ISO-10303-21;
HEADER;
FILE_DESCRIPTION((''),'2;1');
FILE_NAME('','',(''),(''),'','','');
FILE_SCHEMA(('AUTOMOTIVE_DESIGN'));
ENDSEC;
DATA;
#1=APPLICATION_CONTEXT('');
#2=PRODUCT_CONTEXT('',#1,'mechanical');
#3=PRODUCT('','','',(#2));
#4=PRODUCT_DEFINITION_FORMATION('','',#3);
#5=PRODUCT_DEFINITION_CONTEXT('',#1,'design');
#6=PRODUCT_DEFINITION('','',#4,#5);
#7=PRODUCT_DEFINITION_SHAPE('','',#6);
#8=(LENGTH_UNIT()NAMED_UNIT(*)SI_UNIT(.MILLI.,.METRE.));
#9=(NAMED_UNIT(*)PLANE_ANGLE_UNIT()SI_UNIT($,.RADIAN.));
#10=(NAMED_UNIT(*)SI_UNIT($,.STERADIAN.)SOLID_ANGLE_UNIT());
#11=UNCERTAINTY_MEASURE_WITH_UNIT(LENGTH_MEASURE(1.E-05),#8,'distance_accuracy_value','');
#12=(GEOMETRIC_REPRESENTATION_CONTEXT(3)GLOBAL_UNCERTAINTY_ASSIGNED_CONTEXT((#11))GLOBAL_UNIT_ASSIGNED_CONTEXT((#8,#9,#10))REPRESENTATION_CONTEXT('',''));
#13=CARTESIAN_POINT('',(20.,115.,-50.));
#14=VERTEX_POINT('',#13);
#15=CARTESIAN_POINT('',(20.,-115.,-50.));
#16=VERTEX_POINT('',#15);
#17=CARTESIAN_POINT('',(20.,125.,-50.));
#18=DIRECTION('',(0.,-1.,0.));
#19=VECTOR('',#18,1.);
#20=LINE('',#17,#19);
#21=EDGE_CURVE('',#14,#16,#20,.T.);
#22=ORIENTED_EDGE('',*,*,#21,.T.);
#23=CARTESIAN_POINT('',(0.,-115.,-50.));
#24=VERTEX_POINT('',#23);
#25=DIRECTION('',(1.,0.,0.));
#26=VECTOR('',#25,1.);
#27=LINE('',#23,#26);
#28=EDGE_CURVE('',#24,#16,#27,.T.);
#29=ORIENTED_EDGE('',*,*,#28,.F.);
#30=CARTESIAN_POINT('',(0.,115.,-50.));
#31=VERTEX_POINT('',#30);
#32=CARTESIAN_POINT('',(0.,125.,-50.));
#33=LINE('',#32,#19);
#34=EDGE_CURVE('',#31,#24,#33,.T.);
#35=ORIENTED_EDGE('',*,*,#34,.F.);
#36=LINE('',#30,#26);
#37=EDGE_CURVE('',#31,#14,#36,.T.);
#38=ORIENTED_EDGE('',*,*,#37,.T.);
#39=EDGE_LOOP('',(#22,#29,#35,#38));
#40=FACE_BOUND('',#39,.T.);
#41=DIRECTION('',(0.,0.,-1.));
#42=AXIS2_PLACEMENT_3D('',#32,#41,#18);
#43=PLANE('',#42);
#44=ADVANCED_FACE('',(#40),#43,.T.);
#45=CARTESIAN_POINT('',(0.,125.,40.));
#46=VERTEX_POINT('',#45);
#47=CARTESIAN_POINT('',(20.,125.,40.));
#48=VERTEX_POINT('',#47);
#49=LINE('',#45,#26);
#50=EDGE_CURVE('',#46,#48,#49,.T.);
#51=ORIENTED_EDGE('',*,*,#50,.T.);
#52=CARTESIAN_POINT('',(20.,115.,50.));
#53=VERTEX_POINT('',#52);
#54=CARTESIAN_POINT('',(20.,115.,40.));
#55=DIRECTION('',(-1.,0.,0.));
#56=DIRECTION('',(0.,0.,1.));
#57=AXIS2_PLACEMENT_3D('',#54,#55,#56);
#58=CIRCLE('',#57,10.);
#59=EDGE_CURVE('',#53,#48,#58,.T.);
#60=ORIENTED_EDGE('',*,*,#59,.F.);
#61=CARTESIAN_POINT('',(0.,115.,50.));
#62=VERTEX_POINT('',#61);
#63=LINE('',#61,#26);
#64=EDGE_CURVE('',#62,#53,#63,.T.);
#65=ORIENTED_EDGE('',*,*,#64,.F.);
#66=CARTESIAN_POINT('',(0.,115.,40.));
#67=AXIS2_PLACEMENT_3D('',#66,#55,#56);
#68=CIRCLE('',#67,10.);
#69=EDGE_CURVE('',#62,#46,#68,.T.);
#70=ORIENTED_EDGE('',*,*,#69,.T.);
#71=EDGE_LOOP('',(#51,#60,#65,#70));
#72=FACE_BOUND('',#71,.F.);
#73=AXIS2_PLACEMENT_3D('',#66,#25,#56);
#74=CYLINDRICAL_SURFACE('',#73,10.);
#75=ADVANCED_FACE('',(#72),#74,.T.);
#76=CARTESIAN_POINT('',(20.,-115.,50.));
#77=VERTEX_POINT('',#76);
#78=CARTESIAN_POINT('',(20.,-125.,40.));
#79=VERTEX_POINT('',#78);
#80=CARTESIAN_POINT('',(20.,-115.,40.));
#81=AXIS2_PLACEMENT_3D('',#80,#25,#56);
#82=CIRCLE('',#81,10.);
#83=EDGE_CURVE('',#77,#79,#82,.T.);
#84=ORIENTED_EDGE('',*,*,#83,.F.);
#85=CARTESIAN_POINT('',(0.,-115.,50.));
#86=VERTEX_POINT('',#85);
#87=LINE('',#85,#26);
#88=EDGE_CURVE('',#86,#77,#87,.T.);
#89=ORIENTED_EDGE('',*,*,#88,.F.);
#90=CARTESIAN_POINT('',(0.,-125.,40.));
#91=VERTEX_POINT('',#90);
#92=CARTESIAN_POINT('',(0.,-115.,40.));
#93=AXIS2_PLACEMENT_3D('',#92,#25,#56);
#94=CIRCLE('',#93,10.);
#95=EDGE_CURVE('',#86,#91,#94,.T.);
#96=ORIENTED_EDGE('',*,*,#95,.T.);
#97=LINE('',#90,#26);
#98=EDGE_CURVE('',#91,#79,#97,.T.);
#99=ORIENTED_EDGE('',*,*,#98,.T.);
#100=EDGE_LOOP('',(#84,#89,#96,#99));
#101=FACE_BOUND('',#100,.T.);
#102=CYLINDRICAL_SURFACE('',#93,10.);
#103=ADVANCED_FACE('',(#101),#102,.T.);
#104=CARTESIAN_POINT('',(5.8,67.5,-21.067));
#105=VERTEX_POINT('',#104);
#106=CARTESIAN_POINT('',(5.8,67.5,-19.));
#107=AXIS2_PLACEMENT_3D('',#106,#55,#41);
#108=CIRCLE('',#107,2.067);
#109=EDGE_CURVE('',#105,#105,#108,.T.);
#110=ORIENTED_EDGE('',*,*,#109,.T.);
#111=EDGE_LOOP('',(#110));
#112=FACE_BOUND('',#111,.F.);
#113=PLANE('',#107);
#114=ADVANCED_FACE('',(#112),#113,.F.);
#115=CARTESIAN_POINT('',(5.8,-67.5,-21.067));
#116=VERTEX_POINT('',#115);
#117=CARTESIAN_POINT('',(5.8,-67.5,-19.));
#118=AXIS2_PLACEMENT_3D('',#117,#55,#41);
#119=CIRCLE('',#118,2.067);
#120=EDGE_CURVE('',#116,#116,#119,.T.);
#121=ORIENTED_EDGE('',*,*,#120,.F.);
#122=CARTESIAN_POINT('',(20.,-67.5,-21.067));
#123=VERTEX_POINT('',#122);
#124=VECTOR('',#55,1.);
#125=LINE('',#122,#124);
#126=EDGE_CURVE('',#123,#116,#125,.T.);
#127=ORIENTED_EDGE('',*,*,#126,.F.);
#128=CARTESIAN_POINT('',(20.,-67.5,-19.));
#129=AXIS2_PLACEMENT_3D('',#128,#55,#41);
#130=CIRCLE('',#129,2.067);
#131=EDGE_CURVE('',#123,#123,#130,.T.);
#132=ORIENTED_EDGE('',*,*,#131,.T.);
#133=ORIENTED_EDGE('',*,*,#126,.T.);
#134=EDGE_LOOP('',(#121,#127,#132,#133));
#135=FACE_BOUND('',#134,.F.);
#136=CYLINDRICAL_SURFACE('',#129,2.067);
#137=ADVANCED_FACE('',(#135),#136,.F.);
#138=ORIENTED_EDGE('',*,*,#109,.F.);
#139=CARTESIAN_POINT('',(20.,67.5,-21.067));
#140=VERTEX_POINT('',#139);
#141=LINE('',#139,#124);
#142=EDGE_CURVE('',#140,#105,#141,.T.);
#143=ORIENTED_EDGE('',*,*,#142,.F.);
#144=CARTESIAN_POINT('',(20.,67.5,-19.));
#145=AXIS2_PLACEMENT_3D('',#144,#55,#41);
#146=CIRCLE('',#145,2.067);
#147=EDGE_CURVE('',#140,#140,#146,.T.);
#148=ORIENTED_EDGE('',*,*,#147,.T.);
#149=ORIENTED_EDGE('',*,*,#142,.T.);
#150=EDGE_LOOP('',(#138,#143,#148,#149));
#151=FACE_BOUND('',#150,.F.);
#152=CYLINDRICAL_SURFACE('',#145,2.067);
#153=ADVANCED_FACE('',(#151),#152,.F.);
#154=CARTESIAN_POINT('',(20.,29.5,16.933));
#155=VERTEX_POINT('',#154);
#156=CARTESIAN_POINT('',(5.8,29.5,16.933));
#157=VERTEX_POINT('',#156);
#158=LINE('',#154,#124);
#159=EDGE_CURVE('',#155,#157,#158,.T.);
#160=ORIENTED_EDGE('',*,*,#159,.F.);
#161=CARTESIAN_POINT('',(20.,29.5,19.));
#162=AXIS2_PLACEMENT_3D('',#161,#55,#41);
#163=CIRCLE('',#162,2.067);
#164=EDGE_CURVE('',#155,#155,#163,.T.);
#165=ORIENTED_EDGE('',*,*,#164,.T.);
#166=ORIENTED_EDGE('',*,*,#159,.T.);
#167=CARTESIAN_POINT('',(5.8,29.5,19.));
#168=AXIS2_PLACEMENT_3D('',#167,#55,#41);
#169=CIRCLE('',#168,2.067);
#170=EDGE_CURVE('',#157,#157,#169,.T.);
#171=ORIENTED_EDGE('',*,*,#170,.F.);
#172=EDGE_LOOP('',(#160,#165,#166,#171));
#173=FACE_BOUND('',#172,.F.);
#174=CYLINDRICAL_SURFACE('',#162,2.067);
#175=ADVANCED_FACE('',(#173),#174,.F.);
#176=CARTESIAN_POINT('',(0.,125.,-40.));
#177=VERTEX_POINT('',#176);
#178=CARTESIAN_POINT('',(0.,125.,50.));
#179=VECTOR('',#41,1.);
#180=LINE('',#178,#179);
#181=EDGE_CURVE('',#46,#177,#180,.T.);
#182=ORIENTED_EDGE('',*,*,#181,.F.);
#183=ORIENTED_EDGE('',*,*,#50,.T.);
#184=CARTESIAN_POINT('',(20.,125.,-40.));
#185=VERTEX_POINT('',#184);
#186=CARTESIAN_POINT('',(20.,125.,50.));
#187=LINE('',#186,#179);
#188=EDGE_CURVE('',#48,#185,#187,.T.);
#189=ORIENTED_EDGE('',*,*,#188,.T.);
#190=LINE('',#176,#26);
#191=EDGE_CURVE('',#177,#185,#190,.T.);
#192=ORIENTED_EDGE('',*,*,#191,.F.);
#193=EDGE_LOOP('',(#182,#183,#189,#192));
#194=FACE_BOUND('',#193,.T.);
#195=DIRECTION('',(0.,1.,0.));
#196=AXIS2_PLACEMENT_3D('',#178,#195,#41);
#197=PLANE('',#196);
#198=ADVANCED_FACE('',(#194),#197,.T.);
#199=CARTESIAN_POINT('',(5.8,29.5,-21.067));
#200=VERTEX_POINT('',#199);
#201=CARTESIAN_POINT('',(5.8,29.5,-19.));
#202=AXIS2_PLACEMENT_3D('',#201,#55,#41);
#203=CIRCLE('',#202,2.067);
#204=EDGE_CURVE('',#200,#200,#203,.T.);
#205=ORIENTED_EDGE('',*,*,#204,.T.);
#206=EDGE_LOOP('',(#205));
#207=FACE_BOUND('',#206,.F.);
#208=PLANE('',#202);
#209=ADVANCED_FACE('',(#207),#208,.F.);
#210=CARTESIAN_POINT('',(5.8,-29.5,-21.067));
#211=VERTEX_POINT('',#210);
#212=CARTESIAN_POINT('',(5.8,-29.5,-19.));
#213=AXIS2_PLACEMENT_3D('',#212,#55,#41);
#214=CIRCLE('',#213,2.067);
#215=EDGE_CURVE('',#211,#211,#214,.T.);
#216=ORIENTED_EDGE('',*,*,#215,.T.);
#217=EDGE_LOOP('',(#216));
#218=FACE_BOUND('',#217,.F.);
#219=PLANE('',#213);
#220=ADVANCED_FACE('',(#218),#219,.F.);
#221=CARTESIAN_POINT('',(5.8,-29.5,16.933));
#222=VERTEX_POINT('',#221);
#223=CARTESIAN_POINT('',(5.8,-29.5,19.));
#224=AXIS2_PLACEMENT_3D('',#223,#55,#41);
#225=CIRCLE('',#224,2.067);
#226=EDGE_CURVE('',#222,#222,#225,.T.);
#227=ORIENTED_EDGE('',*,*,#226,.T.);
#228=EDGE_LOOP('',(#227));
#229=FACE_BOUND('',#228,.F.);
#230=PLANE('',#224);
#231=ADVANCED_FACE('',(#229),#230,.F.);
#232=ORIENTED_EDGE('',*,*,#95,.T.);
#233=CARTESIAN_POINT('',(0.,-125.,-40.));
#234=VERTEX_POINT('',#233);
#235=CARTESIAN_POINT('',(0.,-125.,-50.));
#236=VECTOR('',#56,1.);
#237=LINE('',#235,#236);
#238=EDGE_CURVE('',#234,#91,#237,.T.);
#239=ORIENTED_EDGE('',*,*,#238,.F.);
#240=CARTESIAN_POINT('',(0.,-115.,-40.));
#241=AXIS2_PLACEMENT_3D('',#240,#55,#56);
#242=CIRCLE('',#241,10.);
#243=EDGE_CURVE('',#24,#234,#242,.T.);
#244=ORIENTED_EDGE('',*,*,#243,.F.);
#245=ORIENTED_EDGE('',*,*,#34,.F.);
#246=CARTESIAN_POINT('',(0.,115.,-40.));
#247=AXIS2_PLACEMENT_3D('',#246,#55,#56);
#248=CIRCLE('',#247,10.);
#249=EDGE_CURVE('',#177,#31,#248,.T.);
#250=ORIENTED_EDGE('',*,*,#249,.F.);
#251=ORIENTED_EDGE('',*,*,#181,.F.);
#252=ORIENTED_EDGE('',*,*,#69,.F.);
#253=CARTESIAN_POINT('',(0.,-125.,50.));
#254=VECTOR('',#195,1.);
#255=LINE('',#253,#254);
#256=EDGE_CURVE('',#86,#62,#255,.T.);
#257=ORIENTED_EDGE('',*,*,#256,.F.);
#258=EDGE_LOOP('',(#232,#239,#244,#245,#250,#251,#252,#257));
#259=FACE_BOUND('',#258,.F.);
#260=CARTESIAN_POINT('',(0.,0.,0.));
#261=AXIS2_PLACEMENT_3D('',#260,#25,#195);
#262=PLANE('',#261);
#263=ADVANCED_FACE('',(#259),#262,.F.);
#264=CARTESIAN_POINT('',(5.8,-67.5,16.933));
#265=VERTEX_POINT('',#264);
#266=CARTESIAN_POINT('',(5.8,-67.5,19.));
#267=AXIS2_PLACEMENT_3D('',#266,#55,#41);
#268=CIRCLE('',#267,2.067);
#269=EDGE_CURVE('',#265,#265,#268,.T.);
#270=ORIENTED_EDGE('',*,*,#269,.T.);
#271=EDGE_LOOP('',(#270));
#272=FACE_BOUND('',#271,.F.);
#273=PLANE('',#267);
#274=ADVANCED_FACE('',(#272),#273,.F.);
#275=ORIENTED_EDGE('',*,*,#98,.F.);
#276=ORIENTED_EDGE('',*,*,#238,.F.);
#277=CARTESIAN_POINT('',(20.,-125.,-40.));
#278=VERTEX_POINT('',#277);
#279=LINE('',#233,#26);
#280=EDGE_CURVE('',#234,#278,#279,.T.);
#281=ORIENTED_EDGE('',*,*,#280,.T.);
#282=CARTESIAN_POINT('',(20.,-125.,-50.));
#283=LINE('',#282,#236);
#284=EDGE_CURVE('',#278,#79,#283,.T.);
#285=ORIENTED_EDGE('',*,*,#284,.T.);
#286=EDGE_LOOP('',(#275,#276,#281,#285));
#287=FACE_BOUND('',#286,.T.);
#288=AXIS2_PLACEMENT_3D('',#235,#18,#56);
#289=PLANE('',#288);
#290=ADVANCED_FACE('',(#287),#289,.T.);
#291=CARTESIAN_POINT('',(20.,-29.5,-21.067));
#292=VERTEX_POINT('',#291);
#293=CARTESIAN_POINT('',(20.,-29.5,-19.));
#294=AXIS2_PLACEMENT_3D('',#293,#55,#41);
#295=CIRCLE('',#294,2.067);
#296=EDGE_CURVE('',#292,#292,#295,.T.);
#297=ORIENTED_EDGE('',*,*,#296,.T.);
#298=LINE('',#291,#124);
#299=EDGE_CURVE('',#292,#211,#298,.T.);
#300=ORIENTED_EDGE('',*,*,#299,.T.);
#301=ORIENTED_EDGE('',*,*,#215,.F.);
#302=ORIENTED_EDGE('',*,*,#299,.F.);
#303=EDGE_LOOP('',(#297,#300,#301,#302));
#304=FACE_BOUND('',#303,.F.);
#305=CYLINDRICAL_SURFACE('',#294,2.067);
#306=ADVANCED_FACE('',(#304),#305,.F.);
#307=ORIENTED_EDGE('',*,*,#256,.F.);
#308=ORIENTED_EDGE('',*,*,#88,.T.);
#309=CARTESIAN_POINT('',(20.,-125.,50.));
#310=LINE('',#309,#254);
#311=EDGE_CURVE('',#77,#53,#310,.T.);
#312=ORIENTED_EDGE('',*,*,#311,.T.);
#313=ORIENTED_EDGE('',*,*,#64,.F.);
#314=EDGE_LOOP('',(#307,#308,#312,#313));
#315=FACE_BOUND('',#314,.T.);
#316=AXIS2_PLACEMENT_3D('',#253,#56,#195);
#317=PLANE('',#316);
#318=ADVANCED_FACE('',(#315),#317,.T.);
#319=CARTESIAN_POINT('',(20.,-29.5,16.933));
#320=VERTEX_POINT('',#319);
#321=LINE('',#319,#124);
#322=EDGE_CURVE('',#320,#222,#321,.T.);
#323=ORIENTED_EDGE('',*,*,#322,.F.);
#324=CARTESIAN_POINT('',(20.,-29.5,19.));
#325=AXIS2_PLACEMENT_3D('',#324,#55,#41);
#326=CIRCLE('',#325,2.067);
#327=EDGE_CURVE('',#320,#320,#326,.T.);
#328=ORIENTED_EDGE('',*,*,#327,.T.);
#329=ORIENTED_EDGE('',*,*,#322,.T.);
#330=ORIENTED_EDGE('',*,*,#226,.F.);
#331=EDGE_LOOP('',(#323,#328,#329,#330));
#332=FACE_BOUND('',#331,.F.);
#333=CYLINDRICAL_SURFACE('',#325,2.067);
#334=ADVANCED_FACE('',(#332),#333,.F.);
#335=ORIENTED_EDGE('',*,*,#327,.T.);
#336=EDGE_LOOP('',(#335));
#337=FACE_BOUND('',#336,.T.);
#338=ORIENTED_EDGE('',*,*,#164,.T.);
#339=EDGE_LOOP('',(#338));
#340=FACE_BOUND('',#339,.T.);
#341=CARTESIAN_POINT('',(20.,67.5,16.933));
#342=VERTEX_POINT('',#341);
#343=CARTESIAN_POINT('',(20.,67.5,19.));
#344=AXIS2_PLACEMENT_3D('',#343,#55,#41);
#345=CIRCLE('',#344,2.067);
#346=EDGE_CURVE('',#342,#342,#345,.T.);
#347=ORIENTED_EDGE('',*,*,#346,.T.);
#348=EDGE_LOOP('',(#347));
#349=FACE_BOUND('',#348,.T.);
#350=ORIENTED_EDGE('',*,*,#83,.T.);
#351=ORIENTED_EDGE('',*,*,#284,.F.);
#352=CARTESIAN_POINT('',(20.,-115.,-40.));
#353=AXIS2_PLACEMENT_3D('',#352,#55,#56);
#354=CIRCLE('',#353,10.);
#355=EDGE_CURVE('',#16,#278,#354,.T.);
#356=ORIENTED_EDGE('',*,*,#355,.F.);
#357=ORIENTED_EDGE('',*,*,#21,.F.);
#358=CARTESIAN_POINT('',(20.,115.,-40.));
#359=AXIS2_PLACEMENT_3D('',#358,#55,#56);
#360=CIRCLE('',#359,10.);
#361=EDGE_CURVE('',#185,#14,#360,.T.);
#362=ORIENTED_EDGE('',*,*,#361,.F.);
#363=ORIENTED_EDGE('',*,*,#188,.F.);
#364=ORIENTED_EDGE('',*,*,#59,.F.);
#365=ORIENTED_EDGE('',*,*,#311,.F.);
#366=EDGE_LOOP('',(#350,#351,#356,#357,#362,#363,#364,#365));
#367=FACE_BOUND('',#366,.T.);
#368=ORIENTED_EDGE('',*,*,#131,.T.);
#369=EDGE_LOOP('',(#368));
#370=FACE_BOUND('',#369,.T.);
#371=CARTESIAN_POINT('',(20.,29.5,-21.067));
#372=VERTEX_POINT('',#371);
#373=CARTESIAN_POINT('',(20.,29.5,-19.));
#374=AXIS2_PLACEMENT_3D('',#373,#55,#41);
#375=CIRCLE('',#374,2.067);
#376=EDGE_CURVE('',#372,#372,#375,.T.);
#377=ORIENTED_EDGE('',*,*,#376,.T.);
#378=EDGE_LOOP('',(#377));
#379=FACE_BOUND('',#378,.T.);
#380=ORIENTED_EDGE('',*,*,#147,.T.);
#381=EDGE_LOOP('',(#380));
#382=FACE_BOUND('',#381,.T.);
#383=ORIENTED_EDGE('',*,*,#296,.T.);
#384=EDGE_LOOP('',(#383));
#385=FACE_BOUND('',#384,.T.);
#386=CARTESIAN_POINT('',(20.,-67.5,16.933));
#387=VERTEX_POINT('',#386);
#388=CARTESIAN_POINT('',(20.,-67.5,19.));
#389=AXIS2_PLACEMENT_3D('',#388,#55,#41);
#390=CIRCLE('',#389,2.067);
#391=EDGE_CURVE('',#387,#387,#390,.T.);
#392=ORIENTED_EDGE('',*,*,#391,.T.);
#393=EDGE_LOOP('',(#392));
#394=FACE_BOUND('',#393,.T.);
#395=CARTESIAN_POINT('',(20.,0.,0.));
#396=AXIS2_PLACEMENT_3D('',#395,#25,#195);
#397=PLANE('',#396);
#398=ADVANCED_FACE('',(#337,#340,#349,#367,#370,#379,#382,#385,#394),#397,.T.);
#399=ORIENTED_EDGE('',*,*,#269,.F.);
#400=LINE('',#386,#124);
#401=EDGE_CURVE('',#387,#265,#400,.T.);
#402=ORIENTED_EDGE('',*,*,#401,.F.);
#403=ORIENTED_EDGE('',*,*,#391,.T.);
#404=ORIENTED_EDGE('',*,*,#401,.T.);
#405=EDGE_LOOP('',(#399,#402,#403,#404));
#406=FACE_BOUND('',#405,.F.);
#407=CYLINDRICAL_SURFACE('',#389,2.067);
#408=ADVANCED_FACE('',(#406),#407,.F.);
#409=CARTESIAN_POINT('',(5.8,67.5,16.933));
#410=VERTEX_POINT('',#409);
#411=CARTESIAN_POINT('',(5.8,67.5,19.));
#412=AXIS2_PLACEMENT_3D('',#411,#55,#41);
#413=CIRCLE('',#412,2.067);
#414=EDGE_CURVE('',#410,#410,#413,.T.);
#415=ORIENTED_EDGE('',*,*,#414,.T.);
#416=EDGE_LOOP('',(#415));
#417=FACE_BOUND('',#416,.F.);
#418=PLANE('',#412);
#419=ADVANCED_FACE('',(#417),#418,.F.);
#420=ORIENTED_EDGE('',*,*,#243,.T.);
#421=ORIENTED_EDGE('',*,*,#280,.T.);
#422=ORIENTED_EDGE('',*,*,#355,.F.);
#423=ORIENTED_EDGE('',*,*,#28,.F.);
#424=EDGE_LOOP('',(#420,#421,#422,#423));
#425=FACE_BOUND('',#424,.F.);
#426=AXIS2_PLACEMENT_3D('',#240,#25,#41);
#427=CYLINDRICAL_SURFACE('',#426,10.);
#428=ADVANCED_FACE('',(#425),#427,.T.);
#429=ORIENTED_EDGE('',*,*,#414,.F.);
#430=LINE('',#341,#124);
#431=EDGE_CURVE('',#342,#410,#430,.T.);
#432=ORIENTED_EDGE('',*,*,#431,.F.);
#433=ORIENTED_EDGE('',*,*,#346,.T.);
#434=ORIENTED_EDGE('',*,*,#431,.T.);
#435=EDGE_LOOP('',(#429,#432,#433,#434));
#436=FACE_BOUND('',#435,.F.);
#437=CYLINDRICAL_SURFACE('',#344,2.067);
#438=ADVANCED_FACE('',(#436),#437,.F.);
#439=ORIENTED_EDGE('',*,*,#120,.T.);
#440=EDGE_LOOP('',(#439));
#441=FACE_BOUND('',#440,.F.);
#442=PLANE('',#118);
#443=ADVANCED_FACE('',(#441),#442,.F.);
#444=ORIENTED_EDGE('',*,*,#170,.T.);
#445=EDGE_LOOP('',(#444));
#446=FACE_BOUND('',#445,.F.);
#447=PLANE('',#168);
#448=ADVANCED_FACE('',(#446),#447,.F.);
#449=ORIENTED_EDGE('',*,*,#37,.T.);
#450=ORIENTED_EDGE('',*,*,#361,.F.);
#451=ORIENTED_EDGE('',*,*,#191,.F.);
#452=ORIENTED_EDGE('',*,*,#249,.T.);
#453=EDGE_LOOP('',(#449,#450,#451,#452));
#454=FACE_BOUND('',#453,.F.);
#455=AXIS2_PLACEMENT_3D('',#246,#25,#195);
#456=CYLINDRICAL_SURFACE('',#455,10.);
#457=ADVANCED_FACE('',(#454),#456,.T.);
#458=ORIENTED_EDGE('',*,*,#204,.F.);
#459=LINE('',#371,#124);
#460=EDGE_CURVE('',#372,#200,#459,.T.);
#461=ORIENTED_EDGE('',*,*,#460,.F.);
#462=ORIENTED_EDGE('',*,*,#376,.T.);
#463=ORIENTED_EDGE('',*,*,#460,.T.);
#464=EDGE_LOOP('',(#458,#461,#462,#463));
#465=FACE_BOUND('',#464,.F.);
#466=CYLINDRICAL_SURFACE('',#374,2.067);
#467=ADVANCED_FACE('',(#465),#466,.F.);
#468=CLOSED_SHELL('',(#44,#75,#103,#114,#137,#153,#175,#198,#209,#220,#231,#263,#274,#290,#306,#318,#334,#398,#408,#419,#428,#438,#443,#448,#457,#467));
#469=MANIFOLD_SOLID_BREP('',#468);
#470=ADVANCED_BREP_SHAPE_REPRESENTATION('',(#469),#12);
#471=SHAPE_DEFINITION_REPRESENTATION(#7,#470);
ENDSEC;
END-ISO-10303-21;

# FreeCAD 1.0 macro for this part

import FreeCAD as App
import Part
import Sketcher
Q = App.Units.Quantity


def edges_at(feature, points):
    """Names of the edges that pass closest to the given points."""
    edges = feature.Shape.Edges
    near = lambda p: min(range(len(edges)), key=lambda i: edges[i].distToShape(Part.Vertex(*p))[0])
    return sorted({f"Edge{near(p) + 1}" for p in points})


def add_polygon(sketch, points):
    """Adds a closed chain of lines whose ends are joined by coincident constraints."""
    first, n = sketch.GeometryCount, len(points)
    for a, b in zip(points, points[1:] + points[:1]):
        sketch.addGeometry(Part.LineSegment(App.Vector(*a, 0), App.Vector(*b, 0)), False)
    for i in range(n):
        sketch.addConstraint(Sketcher.Constraint("Coincident", first + i, 2, first + (i + 1) % n, 1))

doc = App.newDocument("Part")
body = doc.addObject("PartDesign::Body", "Body")

sketch1 = body.newObject("Sketcher::SketchObject", "Sketch")
sketch1.AttachmentSupport = (doc.getObject("YZ_Plane"), [""])
sketch1.MapMode = "FlatFace"
add_polygon(sketch1, [(125, 50), (-125, 50), (-125, -50), (125, -50)])
sketch1.addConstraint(Sketcher.Constraint("Horizontal", 0))
sketch1.addConstraint(Sketcher.Constraint("Vertical", 1))
sketch1.addConstraint(Sketcher.Constraint("Horizontal", 2))
sketch1.addConstraint(Sketcher.Constraint("Vertical", 3))
sketch1.addConstraint(Sketcher.Constraint("Symmetric", 0, 2, 2, 2, -1, 1))
sketch1.addConstraint(Sketcher.Constraint("DistanceX", 0, 2, 0, 1, Q("250 mm")))
sketch1.addConstraint(Sketcher.Constraint("DistanceY", 1, 2, 1, 1, Q("100 mm")))
pad1 = body.newObject("PartDesign::Pad", "Pad")
pad1.Profile = sketch1
pad1.Length = 20
doc.recompute()

fillet = body.newObject("PartDesign::Fillet", "Fillet")
fillet.Base = (pad1, edges_at(pad1, [
    (10, -125, 50),
    (10, -125, -50),
    (10, 125, -50),
    (10, 125, 50),
]))
fillet.Radius = 10

sketch2 = body.newObject("Sketcher::SketchObject", "Sketch001")
sketch2.AttachmentSupport = (doc.getObject("YZ_Plane"), [""])
sketch2.MapMode = "FlatFace"
sketch2.AttachmentOffset = App.Placement(App.Vector(0, 0, 20), App.Rotation())
sketch2.addGeometry(Part.Circle(App.Vector(-67.5, 19, 0), App.Vector(0, 0, 1), 2.1), False)
sketch2.addGeometry(Part.Circle(App.Vector(-29.5, 19, 0), App.Vector(0, 0, 1), 2.1), False)
sketch2.addGeometry(Part.Circle(App.Vector(-29.5, -19, 0), App.Vector(0, 0, 1), 2.1), False)
sketch2.addGeometry(Part.Circle(App.Vector(-67.5, -19, 0), App.Vector(0, 0, 1), 2.1), False)
sketch2.addGeometry(Part.Circle(App.Vector(29.5, -19, 0), App.Vector(0, 0, 1), 2.1), False)
sketch2.addGeometry(Part.Circle(App.Vector(67.5, -19, 0), App.Vector(0, 0, 1), 2.1), False)
sketch2.addGeometry(Part.Circle(App.Vector(67.5, 19, 0), App.Vector(0, 0, 1), 2.1), False)
sketch2.addGeometry(Part.Circle(App.Vector(29.5, 19, 0), App.Vector(0, 0, 1), 2.1), False)
sketch2.addConstraint(Sketcher.Constraint("Equal", 0, 1))
sketch2.addConstraint(Sketcher.Constraint("Equal", 1, 2))
sketch2.addConstraint(Sketcher.Constraint("Equal", 2, 3))
sketch2.addConstraint(Sketcher.Constraint("Equal", 3, 4))
sketch2.addConstraint(Sketcher.Constraint("Equal", 4, 5))
sketch2.addConstraint(Sketcher.Constraint("Equal", 5, 6))
sketch2.addConstraint(Sketcher.Constraint("Equal", 6, 7))
sketch2.addConstraint(Sketcher.Constraint("Symmetric", 1, 3, 4, 3, -1, 1))
sketch2.addConstraint(Sketcher.Constraint("Symmetric", 0, 3, 5, 3, -1, 1))
sketch2.addConstraint(Sketcher.Constraint("Symmetric", 3, 3, 6, 3, -1, 1))
sketch2.addConstraint(Sketcher.Constraint("Symmetric", 2, 3, 7, 3, -1, 1))
sketch2.addConstraint(Sketcher.Constraint("Symmetric", 2, 3, 4, 3, -2))
sketch2.addConstraint(Sketcher.Constraint("Symmetric", 3, 3, 5, 3, -2))
sketch2.addConstraint(Sketcher.Constraint("Horizontal", 0, 3, 1, 3))
sketch2.addConstraint(Sketcher.Constraint("Diameter", 0, Q("4.134 mm")))
sketch2.addConstraint(Sketcher.Constraint("DistanceY", -1, 1, 0, 3, Q("19 mm")))
sketch2.addConstraint(Sketcher.Constraint("DistanceX", 0, 3, 1, 3, Q("38 mm")))
sketch2.addConstraint(Sketcher.Constraint("DistanceX", 2, 3, 4, 3, Q("59 mm")))
doc.recompute()
hole = body.newObject("PartDesign::Hole", "Hole")
hole.Profile = sketch2
hole.ThreadType = "None"
hole.Diameter = 4.134
hole.DepthType = "Dimension"
hole.Depth = 14.2
hole.DrillPoint = "Flat"

doc.recompute()
